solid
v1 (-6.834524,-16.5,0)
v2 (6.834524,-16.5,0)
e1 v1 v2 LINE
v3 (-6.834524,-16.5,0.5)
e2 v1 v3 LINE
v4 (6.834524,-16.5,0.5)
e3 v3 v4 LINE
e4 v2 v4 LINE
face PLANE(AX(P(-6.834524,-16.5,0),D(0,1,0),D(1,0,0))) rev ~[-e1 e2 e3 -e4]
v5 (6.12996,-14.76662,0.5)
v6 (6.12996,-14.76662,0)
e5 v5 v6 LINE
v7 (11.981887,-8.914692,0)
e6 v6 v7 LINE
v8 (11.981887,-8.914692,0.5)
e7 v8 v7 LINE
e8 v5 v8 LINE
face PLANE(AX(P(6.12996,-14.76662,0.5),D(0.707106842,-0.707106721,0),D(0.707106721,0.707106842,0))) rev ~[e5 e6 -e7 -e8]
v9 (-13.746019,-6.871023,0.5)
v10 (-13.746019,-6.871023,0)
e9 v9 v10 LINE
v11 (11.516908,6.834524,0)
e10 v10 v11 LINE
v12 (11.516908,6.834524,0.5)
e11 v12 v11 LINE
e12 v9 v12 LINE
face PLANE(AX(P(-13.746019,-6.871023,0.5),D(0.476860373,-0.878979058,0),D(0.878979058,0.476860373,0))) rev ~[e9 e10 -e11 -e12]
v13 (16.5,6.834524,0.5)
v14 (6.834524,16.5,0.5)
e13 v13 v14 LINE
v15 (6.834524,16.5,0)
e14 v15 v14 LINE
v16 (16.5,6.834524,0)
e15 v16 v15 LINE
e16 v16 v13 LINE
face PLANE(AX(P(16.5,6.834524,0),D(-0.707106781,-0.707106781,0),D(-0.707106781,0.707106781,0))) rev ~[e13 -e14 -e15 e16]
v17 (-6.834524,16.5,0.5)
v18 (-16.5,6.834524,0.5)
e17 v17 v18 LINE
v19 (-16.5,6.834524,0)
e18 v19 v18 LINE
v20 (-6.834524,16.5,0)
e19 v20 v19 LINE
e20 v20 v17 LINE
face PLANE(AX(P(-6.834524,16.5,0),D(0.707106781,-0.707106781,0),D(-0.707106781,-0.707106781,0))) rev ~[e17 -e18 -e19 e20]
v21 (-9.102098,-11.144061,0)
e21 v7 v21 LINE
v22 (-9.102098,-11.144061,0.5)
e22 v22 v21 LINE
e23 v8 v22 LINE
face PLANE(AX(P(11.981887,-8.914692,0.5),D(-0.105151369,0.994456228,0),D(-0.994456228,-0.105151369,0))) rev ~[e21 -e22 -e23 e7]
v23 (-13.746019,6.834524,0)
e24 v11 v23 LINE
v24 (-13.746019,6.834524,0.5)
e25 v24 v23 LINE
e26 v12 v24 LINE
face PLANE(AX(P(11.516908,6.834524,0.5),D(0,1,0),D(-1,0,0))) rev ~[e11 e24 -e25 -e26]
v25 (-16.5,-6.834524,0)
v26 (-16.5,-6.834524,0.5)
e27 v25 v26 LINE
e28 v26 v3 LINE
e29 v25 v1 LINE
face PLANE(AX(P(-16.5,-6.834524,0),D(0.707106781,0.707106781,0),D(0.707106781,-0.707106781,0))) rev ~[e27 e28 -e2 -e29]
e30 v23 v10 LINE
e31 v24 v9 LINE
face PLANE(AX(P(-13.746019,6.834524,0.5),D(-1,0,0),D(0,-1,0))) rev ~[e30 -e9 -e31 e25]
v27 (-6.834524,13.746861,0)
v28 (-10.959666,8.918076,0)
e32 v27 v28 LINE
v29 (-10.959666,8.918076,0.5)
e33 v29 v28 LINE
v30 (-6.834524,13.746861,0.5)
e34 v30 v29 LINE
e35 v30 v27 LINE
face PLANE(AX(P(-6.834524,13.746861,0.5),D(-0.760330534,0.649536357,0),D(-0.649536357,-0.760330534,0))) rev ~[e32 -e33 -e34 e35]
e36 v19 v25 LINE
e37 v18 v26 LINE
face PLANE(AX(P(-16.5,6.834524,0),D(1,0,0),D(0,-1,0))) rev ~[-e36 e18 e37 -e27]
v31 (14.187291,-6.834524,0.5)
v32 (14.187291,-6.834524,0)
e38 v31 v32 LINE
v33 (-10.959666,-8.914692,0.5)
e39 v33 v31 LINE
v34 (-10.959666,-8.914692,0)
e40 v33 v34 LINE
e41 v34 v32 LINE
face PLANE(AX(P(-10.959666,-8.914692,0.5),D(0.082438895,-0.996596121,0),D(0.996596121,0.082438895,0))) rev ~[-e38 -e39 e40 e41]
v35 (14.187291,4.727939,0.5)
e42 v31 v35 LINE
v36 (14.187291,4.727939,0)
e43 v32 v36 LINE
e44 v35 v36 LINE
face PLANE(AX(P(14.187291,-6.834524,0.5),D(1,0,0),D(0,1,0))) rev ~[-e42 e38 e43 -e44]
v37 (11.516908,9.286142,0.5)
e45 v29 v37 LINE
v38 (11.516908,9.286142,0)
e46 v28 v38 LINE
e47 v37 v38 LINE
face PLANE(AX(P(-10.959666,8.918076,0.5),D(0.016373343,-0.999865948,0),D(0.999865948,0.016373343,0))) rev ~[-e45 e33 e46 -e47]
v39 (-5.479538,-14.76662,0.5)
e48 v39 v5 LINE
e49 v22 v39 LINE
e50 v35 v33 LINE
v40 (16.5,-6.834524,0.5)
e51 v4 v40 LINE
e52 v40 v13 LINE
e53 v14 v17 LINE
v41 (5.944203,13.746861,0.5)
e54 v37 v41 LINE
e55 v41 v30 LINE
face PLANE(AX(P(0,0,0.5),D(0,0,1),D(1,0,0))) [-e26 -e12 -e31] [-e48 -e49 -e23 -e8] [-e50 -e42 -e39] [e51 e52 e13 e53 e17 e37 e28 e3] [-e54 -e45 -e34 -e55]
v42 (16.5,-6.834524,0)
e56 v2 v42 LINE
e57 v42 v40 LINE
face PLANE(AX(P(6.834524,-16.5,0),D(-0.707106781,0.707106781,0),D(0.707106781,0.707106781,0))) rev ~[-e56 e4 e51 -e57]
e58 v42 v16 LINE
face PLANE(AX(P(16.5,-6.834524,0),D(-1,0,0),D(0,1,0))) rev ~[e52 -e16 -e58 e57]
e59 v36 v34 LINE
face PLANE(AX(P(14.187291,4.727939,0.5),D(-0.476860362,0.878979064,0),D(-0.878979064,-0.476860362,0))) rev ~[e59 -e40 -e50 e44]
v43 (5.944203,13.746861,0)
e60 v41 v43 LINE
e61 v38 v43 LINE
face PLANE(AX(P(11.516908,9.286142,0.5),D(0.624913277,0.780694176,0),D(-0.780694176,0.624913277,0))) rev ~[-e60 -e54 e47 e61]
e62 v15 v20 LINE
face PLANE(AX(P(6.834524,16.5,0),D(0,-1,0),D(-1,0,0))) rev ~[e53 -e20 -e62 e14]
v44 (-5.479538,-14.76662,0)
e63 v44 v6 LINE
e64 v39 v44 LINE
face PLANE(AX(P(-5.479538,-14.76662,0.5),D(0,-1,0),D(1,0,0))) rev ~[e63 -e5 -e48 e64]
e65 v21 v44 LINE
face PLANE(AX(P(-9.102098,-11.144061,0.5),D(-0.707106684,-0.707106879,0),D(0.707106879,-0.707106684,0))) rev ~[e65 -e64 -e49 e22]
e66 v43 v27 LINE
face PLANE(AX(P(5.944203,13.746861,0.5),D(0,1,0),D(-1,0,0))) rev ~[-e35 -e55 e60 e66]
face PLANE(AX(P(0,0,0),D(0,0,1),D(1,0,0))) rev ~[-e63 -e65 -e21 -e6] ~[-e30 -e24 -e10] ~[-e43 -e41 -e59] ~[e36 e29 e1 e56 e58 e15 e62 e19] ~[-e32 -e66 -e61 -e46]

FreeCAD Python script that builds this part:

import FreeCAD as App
import Part
import Sketcher
Q = App.Units.Quantity


def add_polygon(sketch, points):
    """Adds a closed chain of lines whose ends are joined by coincident constraints."""
    first, n = sketch.GeometryCount, len(points)
    for a, b in zip(points, points[1:] + points[:1]):
        sketch.addGeometry(Part.LineSegment(App.Vector(*a, 0), App.Vector(*b, 0)), False)
    for i in range(n):
        sketch.addConstraint(Sketcher.Constraint("Coincident", first + i, 2, first + (i + 1) % n, 1))

doc = App.newDocument("Part")
params = doc.addObject("Spreadsheet::Sheet", "Params")
for row, (alias, value) in enumerate([
    ("pad1_length", "0.5 mm"),
    ("pocket1_length", "1 mm"),
], start=1):
    params.set(f"A{row}", alias)
    params.set(f"B{row}", "=" + value)
    params.setAlias(f"B{row}", alias)

body = doc.addObject("PartDesign::Body", "Body")

sketch1 = body.newObject("Sketcher::SketchObject", "Sketch")
sketch1.AttachmentSupport = (doc.getObject("XY_Plane"), [""])
sketch1.MapMode = "FlatFace"
add_polygon(sketch1, [(-16, 7), (-16, -7), (-7, -16), (7, -16), (16, -7), (16, 7), (7, 16), (-7, 16)])
sketch1.addConstraint(Sketcher.Constraint("Vertical", 0))
sketch1.addConstraint(Sketcher.Constraint("Horizontal", 2))
sketch1.addConstraint(Sketcher.Constraint("Vertical", 4))
sketch1.addConstraint(Sketcher.Constraint("Horizontal", 6))
sketch1.addConstraint(Sketcher.Constraint("Symmetric", 0, 2, 4, 2, -1, 1))
sketch1.addConstraint(Sketcher.Constraint("Symmetric", 1, 2, 5, 2, -1, 1))
sketch1.addConstraint(Sketcher.Constraint("Perpendicular", 1, 3))
sketch1.addConstraint(Sketcher.Constraint("Perpendicular", 5, 7))
sketch1.addConstraint(Sketcher.Constraint("Horizontal", 0, 2, 3, 2))
sketch1.addConstraint(Sketcher.Constraint("Horizontal", 4, 2, 7, 2))
sketch1.addConstraint(Sketcher.Constraint("Vertical", 2, 2, 5, 2))
sketch1.addConstraint(Sketcher.Constraint("Equal", 6, 0))
sketch1.addConstraint(Sketcher.Constraint("DistanceX", 0, 2, 3, 2, Q("33 mm")))
sketch1.addConstraint(Sketcher.Constraint("DistanceX", 2, 1, 2, 2, Q("13.669048 mm")))
pad1 = body.newObject("PartDesign::Pad", "Pad")
pad1.Profile = sketch1
pad1.setExpression("Length", "Params.pad1_length")

sketch2 = body.newObject("Sketcher::SketchObject", "Sketch001")
sketch2.AttachmentSupport = (doc.getObject("XY_Plane"), [""])
sketch2.MapMode = "FlatFace"
sketch2.AttachmentOffset = App.Placement(App.Vector(0, 0, 0.5), App.Rotation())
add_polygon(sketch2, [(12, 7), (-14, 7), (-14, -7)])
add_polygon(sketch2, [(-7, 14), (-11, 9), (12, 9), (6, 14)])
add_polygon(sketch2, [(14, 5), (-11, -9), (14, -7)])
add_polygon(sketch2, [(12, -9), (-9, -11), (-5, -15), (6, -15)])
sketch2.addConstraint(Sketcher.Constraint("Horizontal", 0))
sketch2.addConstraint(Sketcher.Constraint("Vertical", 1))
sketch2.addConstraint(Sketcher.Constraint("Horizontal", 6))
sketch2.addConstraint(Sketcher.Constraint("Vertical", 9))
sketch2.addConstraint(Sketcher.Constraint("Horizontal", 12))
sketch2.addConstraint(Sketcher.Constraint("Parallel", 2, 7))
sketch2.addConstraint(Sketcher.Constraint("Perpendicular", 11, 13))
sketch2.addConstraint(Sketcher.Constraint("Horizontal", 7, 2, 13, 2))
sketch2.addConstraint(Sketcher.Constraint("Vertical", 2, 2, 4, 2))
sketch2.addConstraint(Sketcher.Constraint("Vertical", 3, 2, 7, 2))
sketch2.addConstraint(Sketcher.Constraint("Angle", 11, Q("-44.999992 deg")))
sketch2.addConstraint(Sketcher.Constraint("DistanceY", 1, 2, 3, 2, Q("15.789099 mm")))
sketch2.addConstraint(Sketcher.Constraint("DistanceY", 1, 2, 8, 2, Q("0.036499 mm")))
sketch2.addConstraint(Sketcher.Constraint("Distance", 5, Q("7.138141 mm")))
sketch2.addConstraint(Sketcher.Constraint("Distance", 7, Q("28.609279 mm")))
sketch2.addConstraint(Sketcher.Constraint("Distance", 10, Q("21.201521 mm")))
sketch2.addConstraint(Sketcher.Constraint("DistanceX", 0, 2, 0, 1, Q("25.262927 mm")))
sketch2.addConstraint(Sketcher.Constraint("DistanceX", 6, 2, 6, 1, Q("12.778727 mm")))
sketch2.addConstraint(Sketcher.Constraint("DistanceX", 12, 1, 12, 2, Q("11.609498 mm")))
sketch2.addConstraint(Sketcher.Constraint("DistanceY", 1, 2, 1, 1, Q("13.705547 mm")))
sketch2.addConstraint(Sketcher.Constraint("DistanceY", 9, 1, 9, 2, Q("11.562463 mm")))
sketch2.addConstraint(Sketcher.Constraint("DistanceX", 0, 2, -1, 1, Q("13.746019 mm")))
sketch2.addConstraint(Sketcher.Constraint("DistanceY", -1, 1, 5, 2, Q("13.746861 mm")))
sketch2.addConstraint(Sketcher.Constraint("DistanceX", -1, 1, 8, 2, Q("14.187291 mm")))
sketch2.addConstraint(Sketcher.Constraint("DistanceY", -1, 1, 9, 2, Q("4.727939 mm")))
sketch2.addConstraint(Sketcher.Constraint("DistanceY", 10, 2, -1, 1, Q("11.144061 mm")))
sketch2.addConstraint(Sketcher.Constraint("DistanceX", -1, 1, 12, 2, Q("6.12996 mm")))
sketch2.addConstraint(Sketcher.Constraint("DistanceY", 4, 2, 5, 2, Q("4.460719 mm")))
pocket1 = body.newObject("PartDesign::Pocket", "Pocket")
pocket1.Profile = sketch2
pocket1.setExpression("Length", "Params.pocket1_length")

doc.recompute()
